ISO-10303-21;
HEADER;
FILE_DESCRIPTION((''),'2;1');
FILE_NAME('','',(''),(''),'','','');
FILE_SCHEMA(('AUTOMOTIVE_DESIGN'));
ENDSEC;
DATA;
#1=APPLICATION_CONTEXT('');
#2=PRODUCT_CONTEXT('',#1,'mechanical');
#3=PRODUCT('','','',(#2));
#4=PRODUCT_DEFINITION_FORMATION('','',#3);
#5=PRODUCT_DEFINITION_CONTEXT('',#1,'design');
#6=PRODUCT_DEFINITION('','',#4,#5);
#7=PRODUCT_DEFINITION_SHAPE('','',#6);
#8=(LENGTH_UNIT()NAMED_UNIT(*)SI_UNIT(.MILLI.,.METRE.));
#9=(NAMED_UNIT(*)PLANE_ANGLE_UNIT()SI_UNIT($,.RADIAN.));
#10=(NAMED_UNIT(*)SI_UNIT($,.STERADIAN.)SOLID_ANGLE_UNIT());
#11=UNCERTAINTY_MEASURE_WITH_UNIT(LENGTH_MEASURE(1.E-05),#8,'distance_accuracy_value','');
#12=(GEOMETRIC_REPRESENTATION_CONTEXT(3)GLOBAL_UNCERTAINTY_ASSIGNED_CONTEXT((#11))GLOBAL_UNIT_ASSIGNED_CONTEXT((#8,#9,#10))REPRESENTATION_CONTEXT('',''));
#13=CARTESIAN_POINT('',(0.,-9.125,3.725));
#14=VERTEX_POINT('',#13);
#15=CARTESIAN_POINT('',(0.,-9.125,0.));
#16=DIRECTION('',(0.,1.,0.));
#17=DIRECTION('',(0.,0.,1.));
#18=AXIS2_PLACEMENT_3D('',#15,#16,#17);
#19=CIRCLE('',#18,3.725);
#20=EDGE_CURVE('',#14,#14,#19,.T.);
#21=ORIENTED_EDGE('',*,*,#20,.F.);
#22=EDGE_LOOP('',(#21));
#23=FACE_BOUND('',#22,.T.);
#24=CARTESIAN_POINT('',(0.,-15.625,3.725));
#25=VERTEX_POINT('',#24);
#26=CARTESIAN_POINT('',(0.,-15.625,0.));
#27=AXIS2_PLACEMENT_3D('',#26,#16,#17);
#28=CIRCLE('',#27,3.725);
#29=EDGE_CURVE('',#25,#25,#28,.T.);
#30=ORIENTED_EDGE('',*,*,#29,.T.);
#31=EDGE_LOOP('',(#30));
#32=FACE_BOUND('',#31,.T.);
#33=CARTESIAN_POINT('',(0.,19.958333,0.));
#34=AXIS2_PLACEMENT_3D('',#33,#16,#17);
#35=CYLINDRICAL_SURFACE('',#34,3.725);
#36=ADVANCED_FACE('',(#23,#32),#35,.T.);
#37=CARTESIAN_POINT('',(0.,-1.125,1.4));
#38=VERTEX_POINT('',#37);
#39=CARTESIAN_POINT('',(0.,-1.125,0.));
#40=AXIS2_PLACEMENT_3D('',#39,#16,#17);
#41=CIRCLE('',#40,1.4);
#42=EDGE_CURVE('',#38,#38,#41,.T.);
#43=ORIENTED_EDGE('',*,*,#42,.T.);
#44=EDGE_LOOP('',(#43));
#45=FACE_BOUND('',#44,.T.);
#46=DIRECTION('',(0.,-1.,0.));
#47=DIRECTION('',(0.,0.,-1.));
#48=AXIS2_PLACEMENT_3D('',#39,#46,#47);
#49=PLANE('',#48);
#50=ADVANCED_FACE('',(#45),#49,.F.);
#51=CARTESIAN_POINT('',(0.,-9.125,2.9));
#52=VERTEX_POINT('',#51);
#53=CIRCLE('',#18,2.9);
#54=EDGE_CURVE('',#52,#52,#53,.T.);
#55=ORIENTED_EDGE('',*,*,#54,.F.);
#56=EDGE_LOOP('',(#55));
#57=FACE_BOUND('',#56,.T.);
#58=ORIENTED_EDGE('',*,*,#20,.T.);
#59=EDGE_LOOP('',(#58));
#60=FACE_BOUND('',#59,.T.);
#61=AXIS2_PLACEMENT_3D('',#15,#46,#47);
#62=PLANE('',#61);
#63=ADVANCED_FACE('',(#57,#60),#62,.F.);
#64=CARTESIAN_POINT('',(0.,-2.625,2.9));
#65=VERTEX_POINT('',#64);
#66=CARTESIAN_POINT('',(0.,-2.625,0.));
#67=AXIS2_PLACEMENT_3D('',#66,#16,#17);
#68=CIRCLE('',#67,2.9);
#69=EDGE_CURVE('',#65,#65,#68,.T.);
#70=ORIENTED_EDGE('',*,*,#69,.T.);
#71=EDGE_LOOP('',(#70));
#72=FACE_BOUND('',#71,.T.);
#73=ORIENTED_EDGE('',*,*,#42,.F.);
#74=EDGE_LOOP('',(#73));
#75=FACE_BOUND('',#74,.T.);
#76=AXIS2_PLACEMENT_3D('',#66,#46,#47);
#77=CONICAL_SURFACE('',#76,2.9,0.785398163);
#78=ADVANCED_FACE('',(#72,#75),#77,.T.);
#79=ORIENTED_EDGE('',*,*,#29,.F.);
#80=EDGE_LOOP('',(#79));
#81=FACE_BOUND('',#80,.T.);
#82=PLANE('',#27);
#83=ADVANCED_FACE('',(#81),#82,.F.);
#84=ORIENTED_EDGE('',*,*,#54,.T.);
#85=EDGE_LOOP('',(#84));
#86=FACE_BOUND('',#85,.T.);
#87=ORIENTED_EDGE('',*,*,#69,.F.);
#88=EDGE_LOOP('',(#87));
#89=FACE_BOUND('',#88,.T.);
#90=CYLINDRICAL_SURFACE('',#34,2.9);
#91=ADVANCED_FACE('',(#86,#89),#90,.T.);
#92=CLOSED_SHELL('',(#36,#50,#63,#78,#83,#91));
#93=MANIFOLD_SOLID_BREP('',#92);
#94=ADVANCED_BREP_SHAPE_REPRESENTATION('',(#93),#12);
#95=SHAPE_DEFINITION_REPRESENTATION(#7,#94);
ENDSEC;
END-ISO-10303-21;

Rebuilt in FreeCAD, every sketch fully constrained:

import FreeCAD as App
import Part
import Sketcher
from FreeCAD import Vector
Q = App.Units.Quantity


def add_polygon(sketch, points):
    """Adds a closed chain of lines whose ends are joined by coincident constraints."""
    first, n = sketch.GeometryCount, len(points)
    for a, b in zip(points, points[1:] + points[:1]):
        sketch.addGeometry(Part.LineSegment(App.Vector(*a, 0), App.Vector(*b, 0)), False)
    for i in range(n):
        sketch.addConstraint(Sketcher.Constraint("Coincident", first + i, 2, first + (i + 1) % n, 1))

doc = App.newDocument("Part")
body = doc.addObject("PartDesign::Body", "Body")

sketch1 = body.newObject("Sketcher::SketchObject", "Sketch")
sketch1.AttachmentSupport = (doc.getObject("XY_Plane"), [""])
sketch1.MapMode = "FlatFace"
add_polygon(sketch1, [(0, -1.1), (0, -15.6), (3.7, -15.6), (3.7, -9.1), (2.9, -9.1), (2.9, -2.6), (1.4, -1.1)])
sketch1.addConstraint(Sketcher.Constraint("Vertical", 0))
sketch1.addConstraint(Sketcher.Constraint("Horizontal", 1))
sketch1.addConstraint(Sketcher.Constraint("Vertical", 2))
sketch1.addConstraint(Sketcher.Constraint("Horizontal", 3))
sketch1.addConstraint(Sketcher.Constraint("Vertical", 4))
sketch1.addConstraint(Sketcher.Constraint("Horizontal", 6))
sketch1.addConstraint(Sketcher.Constraint("PointOnObject", 0, 2, -2))
sketch1.addConstraint(Sketcher.Constraint("Equal", 2, 4))
sketch1.addConstraint(Sketcher.Constraint("Angle", 5, Q("135 deg")))
sketch1.addConstraint(Sketcher.Constraint("DistanceX", 6, 2, 6, 1, Q("1.4 mm")))
sketch1.addConstraint(Sketcher.Constraint("DistanceY", 0, 2, 0, 1, Q("14.5 mm")))
sketch1.addConstraint(Sketcher.Constraint("DistanceY", 2, 1, 2, 2, Q("6.5 mm")))
sketch1.addConstraint(Sketcher.Constraint("DistanceX", 1, 1, 1, 2, Q("3.725 mm")))
sketch1.addConstraint(Sketcher.Constraint("DistanceY", 0, 2, -1, 1, Q("15.625 mm")))
revolution = body.newObject("PartDesign::Revolution", "Revolution")
revolution.Profile = sketch1
revolution.ReferenceAxis = (sketch1, ["V_Axis"])
revolution.Angle = 360

doc.recompute()
